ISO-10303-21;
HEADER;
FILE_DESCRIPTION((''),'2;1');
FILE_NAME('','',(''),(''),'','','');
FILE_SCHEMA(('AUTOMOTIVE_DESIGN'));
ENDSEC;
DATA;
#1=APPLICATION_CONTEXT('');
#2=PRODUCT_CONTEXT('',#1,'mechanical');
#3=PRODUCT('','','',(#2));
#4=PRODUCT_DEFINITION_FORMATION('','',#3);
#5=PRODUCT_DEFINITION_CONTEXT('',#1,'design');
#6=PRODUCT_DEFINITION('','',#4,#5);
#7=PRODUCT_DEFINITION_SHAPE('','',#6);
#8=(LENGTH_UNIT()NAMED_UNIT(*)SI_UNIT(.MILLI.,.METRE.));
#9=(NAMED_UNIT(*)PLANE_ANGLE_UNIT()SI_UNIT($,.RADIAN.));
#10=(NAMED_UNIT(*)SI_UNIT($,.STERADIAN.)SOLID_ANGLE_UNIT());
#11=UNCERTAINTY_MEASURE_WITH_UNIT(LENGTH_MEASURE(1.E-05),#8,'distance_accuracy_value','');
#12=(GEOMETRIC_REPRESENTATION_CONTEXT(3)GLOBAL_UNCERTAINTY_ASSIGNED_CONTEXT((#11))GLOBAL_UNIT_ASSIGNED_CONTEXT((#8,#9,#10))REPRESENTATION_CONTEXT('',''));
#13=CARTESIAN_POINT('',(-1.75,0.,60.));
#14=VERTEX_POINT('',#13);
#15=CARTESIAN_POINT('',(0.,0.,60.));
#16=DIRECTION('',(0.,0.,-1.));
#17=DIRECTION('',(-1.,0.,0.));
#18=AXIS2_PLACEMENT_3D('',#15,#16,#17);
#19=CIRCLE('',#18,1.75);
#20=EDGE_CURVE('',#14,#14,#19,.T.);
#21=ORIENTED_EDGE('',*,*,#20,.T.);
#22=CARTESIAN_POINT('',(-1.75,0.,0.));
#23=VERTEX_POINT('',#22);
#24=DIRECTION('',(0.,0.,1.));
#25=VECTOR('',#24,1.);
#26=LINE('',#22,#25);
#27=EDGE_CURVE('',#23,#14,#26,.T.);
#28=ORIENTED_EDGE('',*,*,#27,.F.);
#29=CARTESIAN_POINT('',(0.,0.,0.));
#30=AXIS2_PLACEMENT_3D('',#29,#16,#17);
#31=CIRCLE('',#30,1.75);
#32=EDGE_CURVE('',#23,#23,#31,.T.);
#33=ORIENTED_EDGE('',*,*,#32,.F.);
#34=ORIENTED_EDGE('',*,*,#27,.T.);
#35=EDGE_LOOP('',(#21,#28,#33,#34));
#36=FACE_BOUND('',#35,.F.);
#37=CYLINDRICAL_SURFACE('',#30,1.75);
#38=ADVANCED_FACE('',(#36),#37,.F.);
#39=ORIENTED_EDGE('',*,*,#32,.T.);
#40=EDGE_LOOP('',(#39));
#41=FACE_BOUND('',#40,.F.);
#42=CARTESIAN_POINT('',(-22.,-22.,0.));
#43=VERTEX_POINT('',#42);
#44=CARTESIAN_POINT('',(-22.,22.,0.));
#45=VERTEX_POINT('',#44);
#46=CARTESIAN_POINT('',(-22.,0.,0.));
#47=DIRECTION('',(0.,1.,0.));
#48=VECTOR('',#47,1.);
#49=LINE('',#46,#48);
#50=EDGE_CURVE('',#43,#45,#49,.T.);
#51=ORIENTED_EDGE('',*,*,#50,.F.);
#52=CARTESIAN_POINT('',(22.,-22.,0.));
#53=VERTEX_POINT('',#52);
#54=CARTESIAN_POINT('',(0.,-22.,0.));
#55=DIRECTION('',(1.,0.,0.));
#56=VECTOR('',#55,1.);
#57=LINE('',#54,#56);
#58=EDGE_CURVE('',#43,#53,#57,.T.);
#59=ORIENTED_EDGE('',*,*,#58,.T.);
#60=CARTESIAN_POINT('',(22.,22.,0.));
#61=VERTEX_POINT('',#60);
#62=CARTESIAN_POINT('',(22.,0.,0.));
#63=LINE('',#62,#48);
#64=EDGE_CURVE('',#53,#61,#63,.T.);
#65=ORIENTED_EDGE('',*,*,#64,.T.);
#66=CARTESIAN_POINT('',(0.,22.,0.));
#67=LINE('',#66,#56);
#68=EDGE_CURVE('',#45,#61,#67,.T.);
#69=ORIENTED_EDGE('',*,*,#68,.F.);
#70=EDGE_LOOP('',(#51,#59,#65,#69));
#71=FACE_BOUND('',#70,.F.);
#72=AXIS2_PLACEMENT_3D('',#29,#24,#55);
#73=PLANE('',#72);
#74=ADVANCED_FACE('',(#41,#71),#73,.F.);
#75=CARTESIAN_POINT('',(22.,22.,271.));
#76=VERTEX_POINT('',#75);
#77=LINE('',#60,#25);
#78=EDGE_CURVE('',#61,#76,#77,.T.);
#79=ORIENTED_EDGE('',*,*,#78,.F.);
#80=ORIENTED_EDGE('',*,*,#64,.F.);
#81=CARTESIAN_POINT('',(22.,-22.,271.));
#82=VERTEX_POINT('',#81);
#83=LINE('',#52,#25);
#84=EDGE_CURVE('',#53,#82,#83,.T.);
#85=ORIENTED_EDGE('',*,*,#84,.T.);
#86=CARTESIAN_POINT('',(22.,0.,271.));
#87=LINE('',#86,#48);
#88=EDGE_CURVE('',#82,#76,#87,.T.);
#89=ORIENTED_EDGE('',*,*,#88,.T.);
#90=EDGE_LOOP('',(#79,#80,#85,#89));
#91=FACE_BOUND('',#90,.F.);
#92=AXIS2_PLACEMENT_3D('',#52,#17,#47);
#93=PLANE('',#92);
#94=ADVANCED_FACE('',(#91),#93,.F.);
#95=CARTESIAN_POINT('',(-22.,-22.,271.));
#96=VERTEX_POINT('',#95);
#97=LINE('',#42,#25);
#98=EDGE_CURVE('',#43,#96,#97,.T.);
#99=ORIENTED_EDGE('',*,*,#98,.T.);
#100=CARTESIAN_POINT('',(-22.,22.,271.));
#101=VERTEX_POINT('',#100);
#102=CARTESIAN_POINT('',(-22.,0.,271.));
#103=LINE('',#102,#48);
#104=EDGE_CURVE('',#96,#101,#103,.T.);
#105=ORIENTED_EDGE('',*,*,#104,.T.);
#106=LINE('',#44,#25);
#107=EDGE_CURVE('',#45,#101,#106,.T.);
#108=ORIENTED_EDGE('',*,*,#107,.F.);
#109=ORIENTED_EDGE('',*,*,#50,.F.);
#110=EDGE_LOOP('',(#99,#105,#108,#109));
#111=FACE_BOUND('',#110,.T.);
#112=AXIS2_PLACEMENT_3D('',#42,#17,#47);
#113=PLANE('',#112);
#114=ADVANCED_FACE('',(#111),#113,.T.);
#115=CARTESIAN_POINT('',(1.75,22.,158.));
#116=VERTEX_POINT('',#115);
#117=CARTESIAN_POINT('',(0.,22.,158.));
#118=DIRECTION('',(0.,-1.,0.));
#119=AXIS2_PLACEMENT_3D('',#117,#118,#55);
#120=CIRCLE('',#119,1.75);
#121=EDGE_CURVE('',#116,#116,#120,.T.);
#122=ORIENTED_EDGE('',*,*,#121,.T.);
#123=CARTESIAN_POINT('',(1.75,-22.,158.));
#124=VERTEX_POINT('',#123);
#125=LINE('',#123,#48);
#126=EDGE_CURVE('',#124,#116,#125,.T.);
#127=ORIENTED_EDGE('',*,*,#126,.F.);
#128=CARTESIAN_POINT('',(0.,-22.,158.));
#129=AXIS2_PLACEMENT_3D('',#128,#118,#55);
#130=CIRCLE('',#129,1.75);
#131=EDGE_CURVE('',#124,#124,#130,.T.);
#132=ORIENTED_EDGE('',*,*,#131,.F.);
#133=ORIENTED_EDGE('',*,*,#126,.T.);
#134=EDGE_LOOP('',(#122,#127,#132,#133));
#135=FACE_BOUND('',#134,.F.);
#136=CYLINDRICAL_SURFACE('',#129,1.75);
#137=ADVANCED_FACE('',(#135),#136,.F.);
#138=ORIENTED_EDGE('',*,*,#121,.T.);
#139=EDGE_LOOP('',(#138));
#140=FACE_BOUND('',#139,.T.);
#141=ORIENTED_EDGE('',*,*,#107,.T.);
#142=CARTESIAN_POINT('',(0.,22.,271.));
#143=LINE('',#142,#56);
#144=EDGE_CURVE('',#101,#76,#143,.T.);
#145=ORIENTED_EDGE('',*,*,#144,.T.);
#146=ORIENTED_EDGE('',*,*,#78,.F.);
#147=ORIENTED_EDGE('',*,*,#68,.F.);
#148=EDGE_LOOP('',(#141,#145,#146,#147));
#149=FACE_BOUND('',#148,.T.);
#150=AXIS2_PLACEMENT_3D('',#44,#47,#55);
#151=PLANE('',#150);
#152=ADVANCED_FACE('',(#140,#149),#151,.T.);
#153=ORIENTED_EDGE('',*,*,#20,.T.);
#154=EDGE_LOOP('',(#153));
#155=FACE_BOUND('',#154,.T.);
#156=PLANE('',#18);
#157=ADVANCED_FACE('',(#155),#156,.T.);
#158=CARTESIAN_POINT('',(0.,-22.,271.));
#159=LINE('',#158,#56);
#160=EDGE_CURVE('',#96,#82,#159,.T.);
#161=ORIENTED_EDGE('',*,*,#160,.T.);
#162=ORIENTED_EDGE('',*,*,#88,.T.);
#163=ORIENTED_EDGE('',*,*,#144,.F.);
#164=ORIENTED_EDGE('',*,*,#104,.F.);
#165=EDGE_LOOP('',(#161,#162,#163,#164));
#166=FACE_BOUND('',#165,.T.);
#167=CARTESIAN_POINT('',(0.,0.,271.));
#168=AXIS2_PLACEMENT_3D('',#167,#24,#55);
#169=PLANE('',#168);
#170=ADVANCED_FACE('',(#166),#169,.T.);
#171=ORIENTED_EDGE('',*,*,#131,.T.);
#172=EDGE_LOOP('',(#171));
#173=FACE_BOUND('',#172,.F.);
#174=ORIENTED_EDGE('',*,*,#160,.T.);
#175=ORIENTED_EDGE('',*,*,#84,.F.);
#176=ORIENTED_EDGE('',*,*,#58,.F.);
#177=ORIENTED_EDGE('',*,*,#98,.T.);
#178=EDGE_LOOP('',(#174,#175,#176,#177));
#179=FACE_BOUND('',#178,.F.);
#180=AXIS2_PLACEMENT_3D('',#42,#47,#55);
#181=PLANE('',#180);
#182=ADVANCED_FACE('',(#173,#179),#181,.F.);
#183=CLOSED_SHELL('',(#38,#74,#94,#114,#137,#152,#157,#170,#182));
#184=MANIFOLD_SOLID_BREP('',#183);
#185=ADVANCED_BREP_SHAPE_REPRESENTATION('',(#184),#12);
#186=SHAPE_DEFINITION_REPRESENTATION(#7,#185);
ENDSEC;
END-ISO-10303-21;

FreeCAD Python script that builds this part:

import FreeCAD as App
import Part
import Sketcher
from FreeCAD import Vector
Q = App.Units.Quantity

doc = App.newDocument("Part")
body = doc.addObject("PartDesign::Body", "Body")

# Sketch on XY plane
sketch1 = doc.addObject("Sketcher::SketchObject", "Sketch")
body.addObject(sketch1)
sketch1.AttachmentSupport = (doc.XY_Plane, [""])
sketch1.MapMode = "FlatFace"
sketch1.addGeometry(Part.LineSegment(Vector(-22, 22, 0), Vector(-22, -22, 0)), False)
sketch1.addGeometry(Part.LineSegment(Vector(-22, -22, 0), Vector(22, -22, 0)), False)
sketch1.addGeometry(Part.LineSegment(Vector(22, -22, 0), Vector(22, 22, 0)), False)
sketch1.addGeometry(Part.LineSegment(Vector(22, 22, 0), Vector(-22, 22, 0)), False)
sketch1.addConstraint(Sketcher.Constraint("Coincident", 0, 2, 1, 1))
sketch1.addConstraint(Sketcher.Constraint("Coincident", 1, 2, 2, 1))
sketch1.addConstraint(Sketcher.Constraint("Coincident", 2, 2, 3, 1))
sketch1.addConstraint(Sketcher.Constraint("Coincident", 3, 2, 0, 1))
sketch1.addConstraint(Sketcher.Constraint("Vertical", 0))
sketch1.addConstraint(Sketcher.Constraint("Horizontal", 1))
sketch1.addConstraint(Sketcher.Constraint("Vertical", 2))
sketch1.addConstraint(Sketcher.Constraint("Horizontal", 3))
sketch1.addConstraint(Sketcher.Constraint("Symmetric", 0, 2, 2, 2, -1, 1))
sketch1.addConstraint(Sketcher.Constraint("Equal", 3, 0))
sketch1.addConstraint(Sketcher.Constraint("DistanceX", 1, 1, 1, 2, Q("44 mm")))
pad1 = doc.addObject("PartDesign::Pad", "Pad")
body.addObject(pad1)
pad1.Profile = sketch1
pad1.Length = 271

# Sketch on XZ plane
sketch2 = doc.addObject("Sketcher::SketchObject", "Sketch001")
body.addObject(sketch2)
sketch2.AttachmentSupport = (doc.XZ_Plane, [""])
sketch2.MapMode = "FlatFace"
sketch2.AttachmentOffset = App.Placement(Vector(0, 0, 22), App.Rotation())
sketch2.addGeometry(Part.Circle(Vector(0, 158, 0), Vector(0, 0, 1), 1.8), False)
sketch2.addConstraint(Sketcher.Constraint("PointOnObject", 0, 3, -2))
sketch2.addConstraint(Sketcher.Constraint("Diameter", 0, Q("3.5 mm")))
sketch2.addConstraint(Sketcher.Constraint("DistanceY", -1, 1, 0, 3, Q("158 mm")))
pocket1 = doc.addObject("PartDesign::Pocket", "Pocket")
body.addObject(pocket1)
pocket1.Profile = sketch2
pocket1.Length = 44

# Sketch on XY plane
sketch3 = doc.addObject("Sketcher::SketchObject", "Sketch002")
body.addObject(sketch3)
sketch3.AttachmentSupport = (doc.XY_Plane, [""])
sketch3.MapMode = "FlatFace"
sketch3.addGeometry(Part.Circle(Vector(0, 0, 0), Vector(0, 0, 1), 1.8), False)
sketch3.addConstraint(Sketcher.Constraint("Coincident", 0, 3, -1, 1))
sketch3.addConstraint(Sketcher.Constraint("Diameter", 0, Q("3.5 mm")))
pocket2 = doc.addObject("PartDesign::Pocket", "Pocket001")
body.addObject(pocket2)
pocket2.Profile = sketch3
pocket2.Length = 60
pocket2.Reversed = True

doc.recompute()
